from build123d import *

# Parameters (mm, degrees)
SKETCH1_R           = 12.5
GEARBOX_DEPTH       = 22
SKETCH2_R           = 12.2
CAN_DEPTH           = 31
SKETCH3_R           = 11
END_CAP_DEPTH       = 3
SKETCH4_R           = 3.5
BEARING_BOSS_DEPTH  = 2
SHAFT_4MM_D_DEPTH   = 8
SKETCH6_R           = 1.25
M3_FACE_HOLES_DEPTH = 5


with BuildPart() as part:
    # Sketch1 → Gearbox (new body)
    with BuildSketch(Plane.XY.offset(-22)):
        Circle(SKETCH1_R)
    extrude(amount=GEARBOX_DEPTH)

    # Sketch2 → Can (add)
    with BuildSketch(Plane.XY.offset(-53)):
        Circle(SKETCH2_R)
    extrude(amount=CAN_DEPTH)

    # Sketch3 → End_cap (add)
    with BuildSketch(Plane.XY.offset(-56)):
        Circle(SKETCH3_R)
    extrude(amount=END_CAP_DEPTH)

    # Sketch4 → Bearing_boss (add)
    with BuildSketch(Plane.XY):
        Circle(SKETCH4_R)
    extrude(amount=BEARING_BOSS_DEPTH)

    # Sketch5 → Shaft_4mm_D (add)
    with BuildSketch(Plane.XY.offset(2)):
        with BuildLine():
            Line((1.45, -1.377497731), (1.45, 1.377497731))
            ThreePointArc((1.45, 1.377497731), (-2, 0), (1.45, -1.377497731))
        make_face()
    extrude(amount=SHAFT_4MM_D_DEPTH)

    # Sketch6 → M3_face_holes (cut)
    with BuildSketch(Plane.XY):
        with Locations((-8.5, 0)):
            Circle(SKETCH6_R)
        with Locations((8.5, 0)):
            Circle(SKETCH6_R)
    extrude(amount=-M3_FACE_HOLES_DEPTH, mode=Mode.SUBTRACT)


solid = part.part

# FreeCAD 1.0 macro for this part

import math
import FreeCAD as App
import Part
import Sketcher
from FreeCAD import Vector
Q = App.Units.Quantity

doc = App.newDocument("Part")
body = doc.addObject("PartDesign::Body", "Body")

sketch1 = body.newObject("Sketcher::SketchObject", "Sketch")
sketch1.AttachmentSupport = (doc.getObject("XY_Plane"), [""])
sketch1.MapMode = "FlatFace"
sketch1.AttachmentOffset = App.Placement(Vector(0, 0, -22), App.Rotation())
sketch1.addGeometry(Part.Circle(Vector(0, 0, 0), Vector(0, 0, 1), 12), False)
sketch1.addConstraint(Sketcher.Constraint("Coincident", 0, 3, -1, 1))
sketch1.addConstraint(Sketcher.Constraint("Diameter", 0, Q("25 mm")))
pad1 = body.newObject("PartDesign::Pad", "Pad")
pad1.Profile = sketch1
pad1.Length = 22

sketch2 = body.newObject("Sketcher::SketchObject", "Sketch001")
sketch2.AttachmentSupport = (doc.getObject("XY_Plane"), [""])
sketch2.MapMode = "FlatFace"
sketch2.AttachmentOffset = App.Placement(Vector(0, 0, -53), App.Rotation())
sketch2.addGeometry(Part.Circle(Vector(0, 0, 0), Vector(0, 0, 1), 12), False)
sketch2.addConstraint(Sketcher.Constraint("Coincident", 0, 3, -1, 1))
sketch2.addConstraint(Sketcher.Constraint("Diameter", 0, Q("24.4 mm")))
pad2 = body.newObject("PartDesign::Pad", "Pad001")
pad2.Profile = sketch2
pad2.Length = 31

sketch3 = body.newObject("Sketcher::SketchObject", "Sketch002")
sketch3.AttachmentSupport = (doc.getObject("XY_Plane"), [""])
sketch3.MapMode = "FlatFace"
sketch3.AttachmentOffset = App.Placement(Vector(0, 0, -56), App.Rotation())
sketch3.addGeometry(Part.Circle(Vector(0, 0, 0), Vector(0, 0, 1), 11), False)
sketch3.addConstraint(Sketcher.Constraint("Coincident", 0, 3, -1, 1))
sketch3.addConstraint(Sketcher.Constraint("Diameter", 0, Q("22 mm")))
pad3 = body.newObject("PartDesign::Pad", "Pad002")
pad3.Profile = sketch3
pad3.Length = 3

sketch4 = body.newObject("Sketcher::SketchObject", "Sketch003")
sketch4.AttachmentSupport = (doc.getObject("XY_Plane"), [""])
sketch4.MapMode = "FlatFace"
sketch4.addGeometry(Part.Circle(Vector(0, 0, 0), Vector(0, 0, 1), 3.5), False)
sketch4.addConstraint(Sketcher.Constraint("Coincident", 0, 3, -1, 1))
sketch4.addConstraint(Sketcher.Constraint("Diameter", 0, Q("7 mm")))
pad4 = body.newObject("PartDesign::Pad", "Pad003")
pad4.Profile = sketch4
pad4.Length = 2

sketch5 = body.newObject("Sketcher::SketchObject", "Sketch004")
sketch5.AttachmentSupport = (doc.getObject("XY_Plane"), [""])
sketch5.MapMode = "FlatFace"
sketch5.AttachmentOffset = App.Placement(Vector(0, 0, 2), App.Rotation())
sketch5.addGeometry(Part.LineSegment(Vector(1.4, -1.4, 0), Vector(1.4, 1.4, 0)), False)
sketch5.addGeometry(Part.ArcOfCircle(Part.Circle(Vector(0, 0, 0), Vector(0, 0, 1), 2), math.radians(44), math.radians(316)), False)
sketch5.addConstraint(Sketcher.Constraint("Coincident", 0, 1, 1, 2))
sketch5.addConstraint(Sketcher.Constraint("Coincident", 1, 1, 0, 2))
sketch5.addConstraint(Sketcher.Constraint("Vertical", 0))
sketch5.addConstraint(Sketcher.Constraint("Coincident", 1, 3, -1, 1))
sketch5.addConstraint(Sketcher.Constraint("Radius", 1, Q("2 mm")))
sketch5.addConstraint(Sketcher.Constraint("DistanceX", -1, 1, 0, 1, Q("1.45 mm")))
pad5 = body.newObject("PartDesign::Pad", "Pad004")
pad5.Profile = sketch5
pad5.Length = 8

sketch6 = body.newObject("Sketcher::SketchObject", "Sketch005")
sketch6.AttachmentSupport = (doc.getObject("XY_Plane"), [""])
sketch6.MapMode = "FlatFace"
sketch6.addGeometry(Part.Circle(Vector(-8.5, 0, 0), Vector(0, 0, 1), 1.2), False)
sketch6.addGeometry(Part.Circle(Vector(8.5, 0, 0), Vector(0, 0, 1), 1.2), False)
sketch6.addConstraint(Sketcher.Constraint("Equal", 0, 1))
sketch6.addConstraint(Sketcher.Constraint("Symmetric", 0, 3, 1, 3, -1, 1))
sketch6.addConstraint(Sketcher.Constraint("PointOnObject", 0, 3, -1))
sketch6.addConstraint(Sketcher.Constraint("Diameter", 0, Q("2.5 mm")))
sketch6.addConstraint(Sketcher.Constraint("DistanceX", 0, 3, 1, 3, Q("17 mm")))
pocket1 = body.newObject("PartDesign::Pocket", "Pocket")
pocket1.Profile = sketch6
pocket1.Length = 5

doc.recompute()
